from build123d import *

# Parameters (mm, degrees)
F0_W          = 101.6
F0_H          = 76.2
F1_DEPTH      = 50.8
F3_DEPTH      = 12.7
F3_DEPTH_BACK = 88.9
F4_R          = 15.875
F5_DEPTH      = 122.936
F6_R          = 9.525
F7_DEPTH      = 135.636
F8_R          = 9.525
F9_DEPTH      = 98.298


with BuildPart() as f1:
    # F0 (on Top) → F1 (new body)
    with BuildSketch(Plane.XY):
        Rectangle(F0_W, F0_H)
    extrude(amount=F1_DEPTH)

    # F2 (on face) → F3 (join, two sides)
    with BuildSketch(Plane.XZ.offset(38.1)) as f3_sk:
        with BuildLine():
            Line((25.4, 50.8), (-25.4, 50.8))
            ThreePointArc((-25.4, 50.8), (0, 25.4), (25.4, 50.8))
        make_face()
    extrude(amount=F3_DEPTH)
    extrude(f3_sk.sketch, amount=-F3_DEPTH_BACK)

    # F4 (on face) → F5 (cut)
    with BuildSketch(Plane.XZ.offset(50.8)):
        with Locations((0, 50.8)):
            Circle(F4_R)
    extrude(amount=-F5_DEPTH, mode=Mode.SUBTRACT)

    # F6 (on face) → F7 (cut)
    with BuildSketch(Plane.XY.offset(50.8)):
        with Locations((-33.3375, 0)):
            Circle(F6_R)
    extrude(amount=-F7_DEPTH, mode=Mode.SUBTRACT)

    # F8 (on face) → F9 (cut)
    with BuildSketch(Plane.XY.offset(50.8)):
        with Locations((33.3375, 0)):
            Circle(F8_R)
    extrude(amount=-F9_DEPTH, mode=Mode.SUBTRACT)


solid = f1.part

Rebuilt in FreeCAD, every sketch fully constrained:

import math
import FreeCAD as App
import Part
import Sketcher

V = App.Vector
Q = App.Units.Quantity


def add_polygon(sketch, points):
    """Adds a closed chain of lines whose ends are joined by coincident constraints."""
    first, n = sketch.GeometryCount, len(points)
    for a, b in zip(points, points[1:] + points[:1]):
        sketch.addGeometry(Part.LineSegment(App.Vector(*a, 0), App.Vector(*b, 0)), False)
    for i in range(n):
        sketch.addConstraint(Sketcher.Constraint("Coincident", first + i, 2, first + (i + 1) % n, 1))

doc = App.newDocument("Part")
body = doc.addObject("PartDesign::Body", "Body")

# Sketch on XY plane
sketch1 = doc.addObject("Sketcher::SketchObject", "Sketch")
body.addObject(sketch1)
sketch1.AttachmentSupport = (doc.XY_Plane, [""])
sketch1.MapMode = "FlatFace"
add_polygon(sketch1, [(-51, 38), (-51, -38), (51, -38), (51, 38)])  # lines 0-3
sketch1.addConstraint([
    Sketcher.Constraint("Vertical", 0),
    Sketcher.Constraint("Horizontal", 1),
    Sketcher.Constraint("Vertical", 2),
    Sketcher.Constraint("Horizontal", 3),
    Sketcher.Constraint("Symmetric", 0, 2, 2, 2, -1, 1),
    Sketcher.Constraint("DistanceX", 1, 1, 1, 2, Q("4 in")),
    Sketcher.Constraint("DistanceY", 0, 2, 0, 1, Q("3 in")),
])
pad1 = doc.addObject("PartDesign::Pad", "Pad")
body.addObject(pad1)
pad1.Profile = sketch1
pad1.Length = Q("2 in")

# Sketch on XZ plane
sketch2 = doc.addObject("Sketcher::SketchObject", "Sketch001")
body.addObject(sketch2)
sketch2.AttachmentSupport = (doc.XZ_Plane, [""])
sketch2.MapMode = "FlatFace"
sketch2.AttachmentOffset = App.Placement(V(0, 0, 1.5 * 25.4), App.Rotation())
sketch2.addGeometry([
    Part.LineSegment(V(25, 51, 0), V(-25, 51, 0)),
    Part.ArcOfCircle(Part.Circle(V(0, 51, 0), V(0, 0, 1), 25), math.radians(180), math.radians(360)),
], False)
sketch2.addConstraint([
    Sketcher.Constraint("Coincident", 0, 1, 1, 2),
    Sketcher.Constraint("Coincident", 1, 1, 0, 2),
    Sketcher.Constraint("Horizontal", 0),
    Sketcher.Constraint("PointOnObject", 1, 3, -2),
    Sketcher.Constraint("Horizontal", 1, 3, 0, 1),
    Sketcher.Constraint("Radius", 1, Q("1 in")),
    Sketcher.Constraint("DistanceY", -1, 1, 1, 3, Q("2 in")),
])
pad2 = doc.addObject("PartDesign::Pad", "Pad001")
body.addObject(pad2)
pad2.Profile = sketch2
pad2.Type = "TwoLengths"
pad2.Length = Q("0.5 in")
pad2.Length2 = Q("3.5 in")

# Sketch on XZ plane
sketch3 = doc.addObject("Sketcher::SketchObject", "Sketch002")
body.addObject(sketch3)
sketch3.AttachmentSupport = (doc.XZ_Plane, [""])
sketch3.MapMode = "FlatFace"
sketch3.AttachmentOffset = App.Placement(V(0, 0, 2 * 25.4), App.Rotation())
sketch3.addGeometry(Part.Circle(V(0, 51, 0), V(0, 0, 1), 16), False)
sketch3.addConstraint([
    Sketcher.Constraint("PointOnObject", 0, 3, -2),
    Sketcher.Constraint("Diameter", 0, Q("1.25 in")),
    Sketcher.Constraint("DistanceY", -1, 1, 0, 3, Q("2 in")),
])
pocket1 = doc.addObject("PartDesign::Pocket", "Pocket")
body.addObject(pocket1)
pocket1.Profile = sketch3
pocket1.Length = Q("4.84 in")

# Sketch on XY plane
sketch4 = doc.addObject("Sketcher::SketchObject", "Sketch003")
body.addObject(sketch4)
sketch4.AttachmentSupport = (doc.XY_Plane, [""])
sketch4.MapMode = "FlatFace"
sketch4.AttachmentOffset = App.Placement(V(0, 0, 2 * 25.4), App.Rotation())
sketch4.addGeometry(Part.Circle(V(-33, 0, 0), V(0, 0, 1), 10), False)
sketch4.addConstraint([
    Sketcher.Constraint("PointOnObject", 0, 3, -1),
    Sketcher.Constraint("Diameter", 0, Q("0.75 in")),
    Sketcher.Constraint("DistanceX", 0, 3, -1, 1, Q("1.3125 in")),
])
pocket2 = doc.addObject("PartDesign::Pocket", "Pocket001")
body.addObject(pocket2)
pocket2.Profile = sketch4
pocket2.Length = Q("5.34 in")

# Sketch on XY plane
sketch5 = doc.addObject("Sketcher::SketchObject", "Sketch004")
body.addObject(sketch5)
sketch5.AttachmentSupport = (doc.XY_Plane, [""])
sketch5.MapMode = "FlatFace"
sketch5.AttachmentOffset = App.Placement(V(0, 0, 2 * 25.4), App.Rotation())
sketch5.addGeometry(Part.Circle(V(33, 0, 0), V(0, 0, 1), 10), False)
sketch5.addConstraint([
    Sketcher.Constraint("PointOnObject", 0, 3, -1),
    Sketcher.Constraint("Diameter", 0, Q("0.75 in")),
    Sketcher.Constraint("DistanceX", -1, 1, 0, 3, Q("1.3125 in")),
])
pocket3 = doc.addObject("PartDesign::Pocket", "Pocket002")
body.addObject(pocket3)
pocket3.Profile = sketch5
pocket3.Length = Q("3.87 in")

doc.recompute()
